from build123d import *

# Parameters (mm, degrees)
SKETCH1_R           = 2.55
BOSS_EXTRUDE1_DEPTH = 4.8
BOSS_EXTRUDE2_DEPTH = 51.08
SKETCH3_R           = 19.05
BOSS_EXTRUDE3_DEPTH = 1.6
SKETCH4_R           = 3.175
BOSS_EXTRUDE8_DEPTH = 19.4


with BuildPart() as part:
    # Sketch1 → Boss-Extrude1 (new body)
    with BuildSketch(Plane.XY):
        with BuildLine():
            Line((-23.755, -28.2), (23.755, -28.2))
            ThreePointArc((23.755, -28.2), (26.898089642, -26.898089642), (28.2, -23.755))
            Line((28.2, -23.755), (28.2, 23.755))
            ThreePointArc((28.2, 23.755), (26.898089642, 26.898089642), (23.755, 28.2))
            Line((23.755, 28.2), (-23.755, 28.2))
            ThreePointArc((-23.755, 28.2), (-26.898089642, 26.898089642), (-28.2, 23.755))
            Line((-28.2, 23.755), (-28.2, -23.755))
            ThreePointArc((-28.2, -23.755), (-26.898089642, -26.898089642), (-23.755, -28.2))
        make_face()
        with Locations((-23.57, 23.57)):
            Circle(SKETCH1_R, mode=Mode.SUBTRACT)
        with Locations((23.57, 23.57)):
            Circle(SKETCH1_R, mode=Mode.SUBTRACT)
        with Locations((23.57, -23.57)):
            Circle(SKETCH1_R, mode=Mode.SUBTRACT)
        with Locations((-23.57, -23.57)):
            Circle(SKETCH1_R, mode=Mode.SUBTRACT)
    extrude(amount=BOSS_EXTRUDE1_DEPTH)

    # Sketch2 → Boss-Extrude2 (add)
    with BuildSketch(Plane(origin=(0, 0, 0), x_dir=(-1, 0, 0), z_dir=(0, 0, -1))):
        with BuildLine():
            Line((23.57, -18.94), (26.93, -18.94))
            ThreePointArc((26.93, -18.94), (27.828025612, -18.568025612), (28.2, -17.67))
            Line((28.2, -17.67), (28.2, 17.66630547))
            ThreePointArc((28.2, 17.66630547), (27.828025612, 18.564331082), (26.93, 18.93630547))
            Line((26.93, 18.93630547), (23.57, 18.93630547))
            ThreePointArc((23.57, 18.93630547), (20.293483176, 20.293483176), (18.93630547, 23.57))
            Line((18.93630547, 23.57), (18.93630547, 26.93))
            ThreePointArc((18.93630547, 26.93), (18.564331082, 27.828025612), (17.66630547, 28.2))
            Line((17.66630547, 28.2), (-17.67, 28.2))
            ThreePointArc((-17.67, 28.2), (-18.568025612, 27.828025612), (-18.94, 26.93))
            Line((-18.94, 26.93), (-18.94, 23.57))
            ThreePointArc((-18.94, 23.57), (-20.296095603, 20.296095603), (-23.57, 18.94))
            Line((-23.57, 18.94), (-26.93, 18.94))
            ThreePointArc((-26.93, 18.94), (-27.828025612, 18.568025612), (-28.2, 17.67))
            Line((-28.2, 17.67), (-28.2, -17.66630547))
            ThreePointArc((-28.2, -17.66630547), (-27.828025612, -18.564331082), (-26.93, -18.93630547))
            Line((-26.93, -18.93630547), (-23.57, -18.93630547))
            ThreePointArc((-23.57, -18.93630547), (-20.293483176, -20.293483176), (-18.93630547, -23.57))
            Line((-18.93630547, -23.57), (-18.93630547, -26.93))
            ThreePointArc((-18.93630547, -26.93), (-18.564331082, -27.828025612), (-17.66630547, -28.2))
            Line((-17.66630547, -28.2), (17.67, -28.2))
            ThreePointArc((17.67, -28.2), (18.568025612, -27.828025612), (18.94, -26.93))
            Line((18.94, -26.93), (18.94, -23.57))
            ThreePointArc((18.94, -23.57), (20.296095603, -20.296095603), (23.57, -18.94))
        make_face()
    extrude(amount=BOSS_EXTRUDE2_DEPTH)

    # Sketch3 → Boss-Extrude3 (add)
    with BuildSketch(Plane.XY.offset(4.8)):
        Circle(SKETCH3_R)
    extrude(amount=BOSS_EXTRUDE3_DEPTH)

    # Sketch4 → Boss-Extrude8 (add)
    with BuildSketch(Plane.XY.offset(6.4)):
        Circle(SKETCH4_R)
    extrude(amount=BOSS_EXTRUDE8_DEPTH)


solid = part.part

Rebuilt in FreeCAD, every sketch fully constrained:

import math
import FreeCAD as App
import Part
import Sketcher
Q = App.Units.Quantity

doc = App.newDocument("Part")
params = doc.addObject("Spreadsheet::Sheet", "Params")
for row, (alias, value) in enumerate([
    ("sketch1_diameter", "5.1 mm"),
    ("sketch1_width", "47.51 mm"),
    ("pad1_length", "4.8 mm"),
    ("sketch2_radius", "1.27 mm"),
    ("sketch2_radius2", "4.63 mm"),
    ("sketch2_width", "3.36 mm"),
    ("pad2_length", "51.08 mm"),
    ("sketch3_diameter", "38.1 mm"),
    ("pad3_length", "1.6 mm"),
    ("sketch4_diameter", "6.35 mm"),
    ("pad4_length", "19.4 mm"),
], start=1):
    params.set(f"A{row}", alias)
    params.set(f"B{row}", "=" + value)
    params.setAlias(f"B{row}", alias)

body = doc.addObject("PartDesign::Body", "Body")

# Sketch on XY plane
sketch1 = doc.addObject("Sketcher::SketchObject", "Sketch")
body.addObject(sketch1)
sketch1.AttachmentSupport = (doc.XY_Plane, [""])
sketch1.MapMode = "FlatFace"
sketch1.addGeometry([
    Part.LineSegment(App.Vector(-23.8, -28.2, 0), App.Vector(23.8, -28.2, 0)),  # 0
    Part.ArcOfCircle(Part.Circle(App.Vector(23.8, -23.8, 0), App.Vector(0, 0, 1), 4.4), math.radians(-90), math.radians(0)),  # 1
    Part.LineSegment(App.Vector(28.2, -23.8, 0), App.Vector(28.2, 23.8, 0)),  # 2
    Part.ArcOfCircle(Part.Circle(App.Vector(23.8, 23.8, 0), App.Vector(0, 0, 1), 4.4), math.radians(0), math.radians(90)),  # 3
    Part.LineSegment(App.Vector(23.8, 28.2, 0), App.Vector(-23.8, 28.2, 0)),  # 4
    Part.ArcOfCircle(Part.Circle(App.Vector(-23.8, 23.8, 0), App.Vector(0, 0, 1), 4.4), math.radians(90), math.radians(180)),  # 5
    Part.LineSegment(App.Vector(-28.2, 23.8, 0), App.Vector(-28.2, -23.8, 0)),  # 6
    Part.ArcOfCircle(Part.Circle(App.Vector(-23.8, -23.8, 0), App.Vector(0, 0, 1), 4.4), math.radians(-180), math.radians(-90)),  # 7
    Part.Circle(App.Vector(-23.6, -23.6, 0), App.Vector(0, 0, 1), 2.5),  # 8
    Part.Circle(App.Vector(23.6, -23.6, 0), App.Vector(0, 0, 1), 2.5),  # 9
    Part.Circle(App.Vector(-23.6, 23.6, 0), App.Vector(0, 0, 1), 2.5),  # 10
    Part.Circle(App.Vector(23.6, 23.6, 0), App.Vector(0, 0, 1), 2.5),  # 11
], False)
sketch1.addConstraint([
    Sketcher.Constraint("Tangent", 0, 2, 1, 1),
    Sketcher.Constraint("Tangent", 1, 2, 2, 1),
    Sketcher.Constraint("Tangent", 2, 2, 3, 1),
    Sketcher.Constraint("Tangent", 3, 2, 4, 1),
    Sketcher.Constraint("Tangent", 4, 2, 5, 1),
    Sketcher.Constraint("Tangent", 5, 2, 6, 1),
    Sketcher.Constraint("Tangent", 6, 2, 7, 1),
    Sketcher.Constraint("Tangent", 7, 2, 0, 1),
    Sketcher.Constraint("Horizontal", 0),
    Sketcher.Constraint("Vertical", 2),
    Sketcher.Constraint("Horizontal", 4),
    Sketcher.Constraint("Vertical", 6),
    Sketcher.Constraint("Equal", 1, 3),
    Sketcher.Constraint("Equal", 3, 5),
    Sketcher.Constraint("Equal", 5, 7),
    Sketcher.Constraint("Equal", 8, 9),
    Sketcher.Constraint("Equal", 9, 10),
    Sketcher.Constraint("Equal", 10, 11),
    Sketcher.Constraint("Symmetric", 1, 3, 5, 3, -1, 1),
    Sketcher.Constraint("Symmetric", 9, 3, 10, 3, -1, 1),
    Sketcher.Constraint("Symmetric", 8, 3, 11, 3, -1, 1),
    Sketcher.Constraint("Symmetric", 8, 3, 9, 3, -2),
    Sketcher.Constraint("Equal", 4, 2),
    Sketcher.Constraint("Diameter", 8, Q("5.1 mm")),
    Sketcher.Constraint("Radius", 1, Q("4.445 mm")),
    Sketcher.Constraint("DistanceX", 0, 1, 0, 2, Q("47.51 mm")),
    Sketcher.Constraint("DistanceX", 8, 3, -1, 1, Q("23.57 mm")),
    Sketcher.Constraint("DistanceY", 8, 3, -1, 1, Q("23.57 mm")),
])
sketch1.setExpression("Constraints[23]", "Params.sketch1_diameter")
sketch1.setExpression("Constraints[25]", "Params.sketch1_width")
pad1 = doc.addObject("PartDesign::Pad", "Pad")
body.addObject(pad1)
pad1.Profile = sketch1
pad1.setExpression("Length", "Params.pad1_length")

# Sketch on XY plane
sketch2 = doc.addObject("Sketcher::SketchObject", "Sketch001")
body.addObject(sketch2)
sketch2.AttachmentSupport = (doc.XY_Plane, [""])
sketch2.MapMode = "FlatFace"
sketch2.addGeometry([
    Part.LineSegment(App.Vector(-23.6, -18.9, 0), App.Vector(-26.9, -18.9, 0)),  # 0
    Part.ArcOfCircle(Part.Circle(App.Vector(-26.9, -17.7, 0), App.Vector(0, 0, 1), 1.3), math.radians(180), math.radians(270)),  # 1
    Part.LineSegment(App.Vector(-28.2, -17.7, 0), App.Vector(-28.2, 17.7, 0)),  # 2
    Part.ArcOfCircle(Part.Circle(App.Vector(-26.9, 17.7, 0), App.Vector(0, 0, 1), 1.3), math.radians(90), math.radians(180)),  # 3
    Part.LineSegment(App.Vector(-26.9, 18.9, 0), App.Vector(-23.6, 18.9, 0)),  # 4
    Part.ArcOfCircle(Part.Circle(App.Vector(-23.6, 23.6, 0), App.Vector(0, 0, 1), 4.6), math.radians(-90), math.radians(0)),  # 5
    Part.LineSegment(App.Vector(-18.9, 23.6, 0), App.Vector(-18.9, 26.9, 0)),  # 6
    Part.ArcOfCircle(Part.Circle(App.Vector(-17.7, 26.9, 0), App.Vector(0, 0, 1), 1.3), math.radians(90), math.radians(180)),  # 7
    Part.LineSegment(App.Vector(-17.7, 28.2, 0), App.Vector(17.7, 28.2, 0)),  # 8
    Part.ArcOfCircle(Part.Circle(App.Vector(17.7, 26.9, 0), App.Vector(0, 0, 1), 1.3), math.radians(0), math.radians(90)),  # 9
    Part.LineSegment(App.Vector(18.9, 26.9, 0), App.Vector(18.9, 23.6, 0)),  # 10
    Part.ArcOfCircle(Part.Circle(App.Vector(23.6, 23.6, 0), App.Vector(0, 0, 1), 4.6), math.radians(180), math.radians(270)),  # 11
    Part.LineSegment(App.Vector(23.6, 18.9, 0), App.Vector(26.9, 18.9, 0)),  # 12
    Part.ArcOfCircle(Part.Circle(App.Vector(26.9, 17.7, 0), App.Vector(0, 0, 1), 1.3), math.radians(0), math.radians(90)),  # 13
    Part.LineSegment(App.Vector(28.2, 17.7, 0), App.Vector(28.2, -17.7, 0)),  # 14
    Part.ArcOfCircle(Part.Circle(App.Vector(26.9, -17.7, 0), App.Vector(0, 0, 1), 1.3), math.radians(-90), math.radians(0)),  # 15
    Part.LineSegment(App.Vector(26.9, -18.9, 0), App.Vector(23.6, -18.9, 0)),  # 16
    Part.ArcOfCircle(Part.Circle(App.Vector(23.6, -23.6, 0), App.Vector(0, 0, 1), 4.6), math.radians(90), math.radians(180)),  # 17
    Part.LineSegment(App.Vector(18.9, -23.6, 0), App.Vector(18.9, -26.9, 0)),  # 18
    Part.ArcOfCircle(Part.Circle(App.Vector(17.7, -26.9, 0), App.Vector(0, 0, 1), 1.3), math.radians(-90), math.radians(0)),  # 19
    Part.LineSegment(App.Vector(17.7, -28.2, 0), App.Vector(-17.7, -28.2, 0)),  # 20
    Part.ArcOfCircle(Part.Circle(App.Vector(-17.7, -26.9, 0), App.Vector(0, 0, 1), 1.3), math.radians(180), math.radians(270)),  # 21
    Part.LineSegment(App.Vector(-18.9, -26.9, 0), App.Vector(-18.9, -23.6, 0)),  # 22
    Part.ArcOfCircle(Part.Circle(App.Vector(-23.6, -23.6, 0), App.Vector(0, 0, 1), 4.6), math.radians(0), math.radians(90)),  # 23
], False)
sketch2.addConstraint([
    Sketcher.Constraint("Tangent", 0, 2, 1, 2),
    Sketcher.Constraint("Tangent", 1, 1, 2, 1),
    Sketcher.Constraint("Tangent", 2, 2, 3, 2),
    Sketcher.Constraint("Tangent", 3, 1, 4, 1),
    Sketcher.Constraint("Tangent", 4, 2, 5, 1),
    Sketcher.Constraint("Tangent", 5, 2, 6, 1),
    Sketcher.Constraint("Tangent", 6, 2, 7, 2),
    Sketcher.Constraint("Tangent", 7, 1, 8, 1),
    Sketcher.Constraint("Tangent", 8, 2, 9, 2),
    Sketcher.Constraint("Tangent", 9, 1, 10, 1),
    Sketcher.Constraint("Tangent", 10, 2, 11, 1),
    Sketcher.Constraint("Tangent", 11, 2, 12, 1),
    Sketcher.Constraint("Tangent", 12, 2, 13, 2),
    Sketcher.Constraint("Tangent", 13, 1, 14, 1),
    Sketcher.Constraint("Tangent", 14, 2, 15, 2),
    Sketcher.Constraint("Tangent", 15, 1, 16, 1),
    Sketcher.Constraint("Tangent", 16, 2, 17, 1),
    Sketcher.Constraint("Tangent", 17, 2, 18, 1),
    Sketcher.Constraint("Tangent", 18, 2, 19, 2),
    Sketcher.Constraint("Tangent", 19, 1, 20, 1),
    Sketcher.Constraint("Tangent", 20, 2, 21, 2),
    Sketcher.Constraint("Tangent", 21, 1, 22, 1),
    Sketcher.Constraint("Tangent", 22, 2, 23, 1),
    Sketcher.Constraint("Tangent", 23, 2, 0, 1),
    Sketcher.Constraint("Horizontal", 0),
    Sketcher.Constraint("Vertical", 2),
    Sketcher.Constraint("Horizontal", 4),
    Sketcher.Constraint("Vertical", 6),
    Sketcher.Constraint("Horizontal", 8),
    Sketcher.Constraint("Vertical", 10),
    Sketcher.Constraint("Horizontal", 12),
    Sketcher.Constraint("Vertical", 14),
    Sketcher.Constraint("Horizontal", 16),
    Sketcher.Constraint("Vertical", 18),
    Sketcher.Constraint("Horizontal", 20),
    Sketcher.Constraint("Vertical", 22),
    Sketcher.Constraint("Equal", 1, 3),
    Sketcher.Constraint("Equal", 3, 7),
    Sketcher.Constraint("Equal", 7, 9),
    Sketcher.Constraint("Equal", 9, 13),
    Sketcher.Constraint("Equal", 13, 15),
    Sketcher.Constraint("Equal", 5, 17),
    Sketcher.Constraint("Equal", 15, 19),
    Sketcher.Constraint("Equal", 19, 21),
    Sketcher.Constraint("Equal", 11, 23),
    Sketcher.Constraint("Symmetric", 1, 3, 13, 3, -1, 1),
    Sketcher.Constraint("Symmetric", 5, 3, 17, 3, -1, 1),
    Sketcher.Constraint("Symmetric", 9, 3, 21, 3, -1, 1),
    Sketcher.Constraint("Symmetric", 5, 3, 11, 3, -2),
    Sketcher.Constraint("Equal", 20, 2),
    Sketcher.Constraint("Equal", 16, 6),
    Sketcher.Constraint("Radius", 1, Q("1.27 mm")),
    Sketcher.Constraint("Radius", 11, Q("4.63 mm")),
    Sketcher.Constraint("DistanceX", 0, 2, 0, 1, Q("3.36 mm")),
    Sketcher.Constraint("DistanceX", 1, 1, -1, 1, Q("28.2 mm")),
    Sketcher.Constraint("Radius", 5, Q("4.633695 mm")),
])
sketch2.setExpression("Constraints[51]", "Params.sketch2_radius")
sketch2.setExpression("Constraints[52]", "Params.sketch2_radius2")
sketch2.setExpression("Constraints[53]", "Params.sketch2_width")
pad2 = doc.addObject("PartDesign::Pad", "Pad001")
body.addObject(pad2)
pad2.Profile = sketch2
pad2.setExpression("Length", "Params.pad2_length")
pad2.Reversed = True

# Sketch on XY plane
sketch3 = doc.addObject("Sketcher::SketchObject", "Sketch002")
body.addObject(sketch3)
sketch3.AttachmentSupport = (doc.XY_Plane, [""])
sketch3.MapMode = "FlatFace"
sketch3.AttachmentOffset = App.Placement(App.Vector(0, 0, 4.8), App.Rotation())
sketch3.addGeometry(Part.Circle(App.Vector(0, 0, 0), App.Vector(0, 0, 1), 19), False)
sketch3.addConstraint([
    Sketcher.Constraint("Coincident", 0, 3, -1, 1),
    Sketcher.Constraint("Diameter", 0, Q("38.1 mm")),
])
sketch3.setExpression("Constraints[1]", "Params.sketch3_diameter")
pad3 = doc.addObject("PartDesign::Pad", "Pad002")
body.addObject(pad3)
pad3.Profile = sketch3
pad3.setExpression("Length", "Params.pad3_length")

# Sketch on XY plane
sketch4 = doc.addObject("Sketcher::SketchObject", "Sketch003")
body.addObject(sketch4)
sketch4.AttachmentSupport = (doc.XY_Plane, [""])
sketch4.MapMode = "FlatFace"
sketch4.AttachmentOffset = App.Placement(App.Vector(0, 0, 6.4), App.Rotation())
sketch4.addGeometry(Part.Circle(App.Vector(0, 0, 0), App.Vector(0, 0, 1), 3.2), False)
sketch4.addConstraint([
    Sketcher.Constraint("Coincident", 0, 3, -1, 1),
    Sketcher.Constraint("Diameter", 0, Q("6.35 mm")),
])
sketch4.setExpression("Constraints[1]", "Params.sketch4_diameter")
pad4 = doc.addObject("PartDesign::Pad", "Pad003")
body.addObject(pad4)
pad4.Profile = sketch4
pad4.setExpression("Length", "Params.pad4_length")

doc.recompute()
